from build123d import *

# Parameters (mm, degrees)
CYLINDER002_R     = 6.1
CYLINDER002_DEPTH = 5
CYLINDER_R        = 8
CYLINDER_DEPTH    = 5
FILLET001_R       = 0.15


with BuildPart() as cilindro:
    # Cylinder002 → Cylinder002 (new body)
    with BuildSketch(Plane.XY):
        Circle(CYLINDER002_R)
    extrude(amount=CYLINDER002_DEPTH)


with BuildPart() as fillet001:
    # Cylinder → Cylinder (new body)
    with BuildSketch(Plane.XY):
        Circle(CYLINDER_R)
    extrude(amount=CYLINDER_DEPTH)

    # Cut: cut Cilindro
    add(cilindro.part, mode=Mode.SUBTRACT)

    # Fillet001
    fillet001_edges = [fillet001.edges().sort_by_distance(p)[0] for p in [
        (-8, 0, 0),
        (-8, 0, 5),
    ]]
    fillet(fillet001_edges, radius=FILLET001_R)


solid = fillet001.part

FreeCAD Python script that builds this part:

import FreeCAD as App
import Part
import Sketcher


def edges_at(feature, points):
    """Names of the edges that pass closest to the given points."""
    edges = feature.Shape.Edges
    near = lambda p: min(range(len(edges)), key=lambda i: edges[i].distToShape(Part.Vertex(*p))[0])
    return sorted({f"Edge{near(p) + 1}" for p in points})

doc = App.newDocument("Part")
body = doc.addObject("PartDesign::Body", "Body")

sketch1 = body.newObject("Sketcher::SketchObject", "Sketch")
sketch1.AttachmentSupport = (doc.getObject("XY_Plane"), [""])
sketch1.MapMode = "FlatFace"
sketch1.addGeometry(Part.Circle(App.Vector(0, 0, 0), App.Vector(0, 0, 1), 6), False)
sketch1.addConstraint([
    Sketcher.Constraint("Coincident", 0, 3, -1, 1),
    Sketcher.Constraint("Diameter", 0, 12.2),
])
pad1 = body.newObject("PartDesign::Pad", "Pad")
pad1.Profile = sketch1
pad1.Length = 5
body2 = doc.addObject("PartDesign::Body", "Body001")

sketch2 = body2.newObject("Sketcher::SketchObject", "Sketch001")
sketch2.AttachmentSupport = (doc.getObject("XY_Plane001"), [""])
sketch2.MapMode = "FlatFace"
sketch2.addGeometry(Part.Circle(App.Vector(0, 0, 0), App.Vector(0, 0, 1), 8), False)
sketch2.addConstraint([
    Sketcher.Constraint("Coincident", 0, 3, -1, 1),
    Sketcher.Constraint("Diameter", 0, 16.0),
])
pad2 = body2.newObject("PartDesign::Pad", "Pad001")
pad2.Profile = sketch2
pad2.Length = 5
doc.recompute()

boolean = body2.newObject("PartDesign::Boolean", "Boolean")
boolean.Type = "Cut"
boolean.addObjects([body])
doc.recompute()

fillet = body2.newObject("PartDesign::Fillet", "Fillet")
fillet.Base = (boolean, edges_at(boolean, [(-8, 0, 0), (-8, 0, 5)]))
fillet.Radius = 0.15

doc.recompute()
